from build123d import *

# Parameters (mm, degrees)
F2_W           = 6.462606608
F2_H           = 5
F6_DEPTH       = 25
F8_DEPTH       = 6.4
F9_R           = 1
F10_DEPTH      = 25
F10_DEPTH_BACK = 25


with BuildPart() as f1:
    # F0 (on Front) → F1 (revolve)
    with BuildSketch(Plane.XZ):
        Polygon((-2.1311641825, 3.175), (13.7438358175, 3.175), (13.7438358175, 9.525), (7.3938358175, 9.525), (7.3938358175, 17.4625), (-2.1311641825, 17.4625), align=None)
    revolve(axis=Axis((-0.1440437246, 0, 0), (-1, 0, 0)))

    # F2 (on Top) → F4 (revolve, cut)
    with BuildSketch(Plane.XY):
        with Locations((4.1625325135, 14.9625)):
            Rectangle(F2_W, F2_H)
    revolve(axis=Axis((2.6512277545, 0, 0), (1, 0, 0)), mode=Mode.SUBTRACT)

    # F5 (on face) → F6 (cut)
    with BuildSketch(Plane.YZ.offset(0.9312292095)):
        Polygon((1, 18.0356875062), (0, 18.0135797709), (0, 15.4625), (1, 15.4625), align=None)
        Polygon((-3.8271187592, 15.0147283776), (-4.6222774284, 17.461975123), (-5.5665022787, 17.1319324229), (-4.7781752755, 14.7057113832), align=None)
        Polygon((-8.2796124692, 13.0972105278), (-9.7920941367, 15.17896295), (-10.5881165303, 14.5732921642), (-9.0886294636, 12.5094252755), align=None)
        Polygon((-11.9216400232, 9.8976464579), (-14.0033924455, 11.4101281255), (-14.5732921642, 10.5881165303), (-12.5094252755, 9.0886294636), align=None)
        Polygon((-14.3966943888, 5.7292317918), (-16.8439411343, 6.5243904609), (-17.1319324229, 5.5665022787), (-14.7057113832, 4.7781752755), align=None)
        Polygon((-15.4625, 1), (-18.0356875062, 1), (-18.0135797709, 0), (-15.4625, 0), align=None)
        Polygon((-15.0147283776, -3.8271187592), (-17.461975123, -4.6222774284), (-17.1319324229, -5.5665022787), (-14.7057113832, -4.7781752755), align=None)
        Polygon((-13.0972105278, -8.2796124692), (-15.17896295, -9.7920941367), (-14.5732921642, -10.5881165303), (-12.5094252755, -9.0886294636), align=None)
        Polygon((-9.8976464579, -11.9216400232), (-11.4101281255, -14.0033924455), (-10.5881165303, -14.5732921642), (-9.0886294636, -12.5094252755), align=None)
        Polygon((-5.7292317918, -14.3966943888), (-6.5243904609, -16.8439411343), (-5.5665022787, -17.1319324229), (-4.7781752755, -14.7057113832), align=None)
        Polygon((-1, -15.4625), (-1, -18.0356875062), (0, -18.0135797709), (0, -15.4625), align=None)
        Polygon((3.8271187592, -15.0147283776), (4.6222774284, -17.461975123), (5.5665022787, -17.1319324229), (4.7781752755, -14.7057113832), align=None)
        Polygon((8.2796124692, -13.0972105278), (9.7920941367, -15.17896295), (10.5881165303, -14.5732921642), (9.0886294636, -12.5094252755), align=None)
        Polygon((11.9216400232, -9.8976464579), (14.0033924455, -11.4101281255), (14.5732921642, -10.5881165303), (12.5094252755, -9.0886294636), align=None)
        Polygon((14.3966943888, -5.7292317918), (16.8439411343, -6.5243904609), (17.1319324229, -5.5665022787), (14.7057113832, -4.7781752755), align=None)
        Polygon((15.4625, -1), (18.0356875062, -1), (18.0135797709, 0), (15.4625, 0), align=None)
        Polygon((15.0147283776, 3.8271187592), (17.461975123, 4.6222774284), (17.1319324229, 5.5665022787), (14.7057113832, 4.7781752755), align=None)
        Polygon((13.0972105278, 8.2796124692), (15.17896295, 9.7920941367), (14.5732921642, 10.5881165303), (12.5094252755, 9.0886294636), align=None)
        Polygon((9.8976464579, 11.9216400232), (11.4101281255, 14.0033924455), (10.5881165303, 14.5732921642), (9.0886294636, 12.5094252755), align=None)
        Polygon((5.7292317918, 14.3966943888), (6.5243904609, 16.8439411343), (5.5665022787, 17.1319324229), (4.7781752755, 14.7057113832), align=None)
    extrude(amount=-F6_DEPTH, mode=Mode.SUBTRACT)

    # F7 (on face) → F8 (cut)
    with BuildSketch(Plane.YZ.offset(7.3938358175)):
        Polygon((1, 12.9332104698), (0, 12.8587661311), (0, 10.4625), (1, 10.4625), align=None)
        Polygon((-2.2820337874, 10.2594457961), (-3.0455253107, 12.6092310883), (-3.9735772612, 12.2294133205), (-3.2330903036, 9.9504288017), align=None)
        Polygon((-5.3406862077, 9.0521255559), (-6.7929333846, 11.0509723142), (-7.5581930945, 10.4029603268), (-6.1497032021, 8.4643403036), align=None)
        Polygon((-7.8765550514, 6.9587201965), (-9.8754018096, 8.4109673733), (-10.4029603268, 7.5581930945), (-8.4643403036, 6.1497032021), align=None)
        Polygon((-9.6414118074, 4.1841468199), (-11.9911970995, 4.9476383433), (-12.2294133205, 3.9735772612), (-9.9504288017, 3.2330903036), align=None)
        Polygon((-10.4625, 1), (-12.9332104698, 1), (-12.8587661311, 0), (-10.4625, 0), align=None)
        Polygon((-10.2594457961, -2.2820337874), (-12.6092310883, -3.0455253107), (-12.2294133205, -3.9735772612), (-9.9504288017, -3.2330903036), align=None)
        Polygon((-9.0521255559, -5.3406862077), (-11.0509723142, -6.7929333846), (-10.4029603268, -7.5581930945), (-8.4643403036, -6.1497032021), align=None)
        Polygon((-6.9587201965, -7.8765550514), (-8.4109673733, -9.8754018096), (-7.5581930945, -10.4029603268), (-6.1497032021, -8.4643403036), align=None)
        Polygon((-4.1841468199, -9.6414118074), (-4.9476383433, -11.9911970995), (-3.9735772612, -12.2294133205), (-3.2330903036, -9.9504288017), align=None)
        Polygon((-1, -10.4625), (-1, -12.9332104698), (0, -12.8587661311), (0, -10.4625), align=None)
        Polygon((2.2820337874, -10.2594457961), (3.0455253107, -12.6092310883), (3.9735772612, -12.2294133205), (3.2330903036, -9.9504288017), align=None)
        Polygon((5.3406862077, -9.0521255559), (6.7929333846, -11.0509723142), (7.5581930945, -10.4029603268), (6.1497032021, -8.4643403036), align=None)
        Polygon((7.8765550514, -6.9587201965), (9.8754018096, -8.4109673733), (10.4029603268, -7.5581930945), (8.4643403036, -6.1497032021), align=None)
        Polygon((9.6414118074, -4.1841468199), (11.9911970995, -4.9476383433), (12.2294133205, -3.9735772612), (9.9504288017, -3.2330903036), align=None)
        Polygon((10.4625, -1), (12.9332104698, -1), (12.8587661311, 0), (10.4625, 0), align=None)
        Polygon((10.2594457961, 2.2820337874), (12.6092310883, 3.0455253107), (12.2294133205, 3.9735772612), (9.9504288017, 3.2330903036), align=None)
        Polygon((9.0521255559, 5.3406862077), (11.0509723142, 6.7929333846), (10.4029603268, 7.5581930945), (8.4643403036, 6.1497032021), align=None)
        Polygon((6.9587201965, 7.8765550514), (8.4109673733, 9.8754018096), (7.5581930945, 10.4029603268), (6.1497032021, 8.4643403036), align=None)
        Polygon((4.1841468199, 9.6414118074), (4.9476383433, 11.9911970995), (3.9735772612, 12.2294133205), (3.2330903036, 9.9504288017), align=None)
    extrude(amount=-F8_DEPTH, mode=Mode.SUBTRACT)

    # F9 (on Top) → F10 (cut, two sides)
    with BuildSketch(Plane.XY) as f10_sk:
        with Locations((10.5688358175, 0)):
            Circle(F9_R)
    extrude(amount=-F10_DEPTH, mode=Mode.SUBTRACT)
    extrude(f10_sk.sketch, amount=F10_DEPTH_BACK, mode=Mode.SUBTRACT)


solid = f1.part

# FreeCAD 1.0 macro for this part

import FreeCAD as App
import Part
import Sketcher
Q = App.Units.Quantity


def add_polygon(sketch, points):
    """Adds a closed chain of lines whose ends are joined by coincident constraints."""
    first, n = sketch.GeometryCount, len(points)
    for a, b in zip(points, points[1:] + points[:1]):
        sketch.addGeometry(Part.LineSegment(App.Vector(*a, 0), App.Vector(*b, 0)), False)
    for i in range(n):
        sketch.addConstraint(Sketcher.Constraint("Coincident", first + i, 2, first + (i + 1) % n, 1))

doc = App.newDocument("Part")
body = doc.addObject("PartDesign::Body", "Body")

# Sketch on XZ plane
sketch1 = body.newObject("Sketcher::SketchObject", "Sketch")
sketch1.AttachmentSupport = (doc.getObject("XZ_Plane"), [""])
sketch1.MapMode = "FlatFace"
add_polygon(sketch1, [(-2.131164, 3.175), (13.743836, 3.175), (13.743836, 9.525), (7.393836, 9.525), (7.393836, 17.4625), (-2.131164, 17.4625)])  # lines 0-5
sketch1.addConstraint([
    Sketcher.Constraint("Horizontal", 0),
    Sketcher.Constraint("Vertical", 1),
    Sketcher.Constraint("Horizontal", 2),
    Sketcher.Constraint("Vertical", 3),
    Sketcher.Constraint("Horizontal", 4),
    Sketcher.Constraint("Vertical", 5),
    Sketcher.Constraint("Equal", 2, 1),
    Sketcher.Constraint("DistanceX", 2, 2, 2, 1, 6.35),
    Sketcher.Constraint("DistanceX", 0, 1, 0, 2, 15.875),
    Sketcher.Constraint("DistanceY", 3, 1, 3, 2, 7.9375),
    Sketcher.Constraint("DistanceY", -1, 1, 0, 2, 3.175),
    Sketcher.Constraint("DistanceX", -1, 1, 0, 2, 13.743836),
])
revolution = body.newObject("PartDesign::Revolution", "Revolution")
revolution.Profile = sketch1
revolution.ReferenceAxis = (sketch1, ["H_Axis"])
revolution.Angle = 360

# Sketch on XY plane
sketch2 = body.newObject("Sketcher::SketchObject", "Sketch001")
sketch2.AttachmentSupport = (doc.getObject("XY_Plane"), [""])
sketch2.MapMode = "FlatFace"
add_polygon(sketch2, [(0.931229, 17.4625), (0.931229, 12.4625), (7.393836, 12.4625), (7.393836, 17.4625)])  # lines 0-3
sketch2.addConstraint([
    Sketcher.Constraint("Vertical", 0),
    Sketcher.Constraint("Horizontal", 1),
    Sketcher.Constraint("Vertical", 2),
    Sketcher.Constraint("Horizontal", 3),
    Sketcher.Constraint("DistanceY", 0, 2, 0, 1, 5.0),
    Sketcher.Constraint("DistanceY", -1, 1, 0, 2, 12.4625),
    Sketcher.Constraint("DistanceX", 1, 1, 1, 2, 6.462607),
    Sketcher.Constraint("DistanceX", -1, 1, 0, 2, 0.931229),
])
groove = body.newObject("PartDesign::Groove", "Groove")
groove.Profile = sketch2
groove.ReferenceAxis = (sketch2, ["H_Axis"])
groove.Angle = 360

# Sketch on YZ plane
sketch3 = body.newObject("Sketcher::SketchObject", "Sketch002")
sketch3.AttachmentSupport = (doc.getObject("YZ_Plane"), [""])
sketch3.MapMode = "FlatFace"
sketch3.AttachmentOffset = App.Placement(App.Vector(0, 0, 0.931229), App.Rotation())
add_polygon(sketch3, [(1, 18.035688), (0, 18.01358), (0, 15.4625), (1, 15.4625)])  # lines 0-3
add_polygon(sketch3, [(-3.827119, 15.014728), (-4.622277, 17.461975), (-5.566502, 17.131932), (-4.778175, 14.705711)])  # lines 4-7
add_polygon(sketch3, [(-8.279612, 13.097211), (-9.792094, 15.178963), (-10.588117, 14.573292), (-9.088629, 12.509425)])  # lines 8-11
add_polygon(sketch3, [(-11.92164, 9.897646), (-14.003392, 11.410128), (-14.573292, 10.588117), (-12.509425, 9.088629)])  # lines 12-15
add_polygon(sketch3, [(-14.396694, 5.729232), (-16.843941, 6.52439), (-17.131932, 5.566502), (-14.705711, 4.778175)])  # lines 16-19
add_polygon(sketch3, [(-15.4625, 1), (-18.035688, 1), (-18.01358, 0), (-15.4625, 0)])  # lines 20-23
add_polygon(sketch3, [(-15.014728, -3.827119), (-17.461975, -4.622277), (-17.131932, -5.566502), (-14.705711, -4.778175)])  # lines 24-27
add_polygon(sketch3, [(-13.097211, -8.279612), (-15.178963, -9.792094), (-14.573292, -10.588117), (-12.509425, -9.088629)])  # lines 28-31
add_polygon(sketch3, [(-9.897646, -11.92164), (-11.410128, -14.003392), (-10.588117, -14.573292), (-9.088629, -12.509425)])  # lines 32-35
add_polygon(sketch3, [(-5.729232, -14.396694), (-6.52439, -16.843941), (-5.566502, -17.131932), (-4.778175, -14.705711)])  # lines 36-39
add_polygon(sketch3, [(-1, -15.4625), (-1, -18.035688), (0, -18.01358), (0, -15.4625)])  # lines 40-43
add_polygon(sketch3, [(3.827119, -15.014728), (4.622277, -17.461975), (5.566502, -17.131932), (4.778175, -14.705711)])  # lines 44-47
add_polygon(sketch3, [(8.279612, -13.097211), (9.792094, -15.178963), (10.588117, -14.573292), (9.088629, -12.509425)])  # lines 48-51
add_polygon(sketch3, [(11.92164, -9.897646), (14.003392, -11.410128), (14.573292, -10.588117), (12.509425, -9.088629)])  # lines 52-55
add_polygon(sketch3, [(14.396694, -5.729232), (16.843941, -6.52439), (17.131932, -5.566502), (14.705711, -4.778175)])  # lines 56-59
add_polygon(sketch3, [(15.4625, -1), (18.035688, -1), (18.01358, 0), (15.4625, 0)])  # lines 60-63
add_polygon(sketch3, [(15.014728, 3.827119), (17.461975, 4.622277), (17.131932, 5.566502), (14.705711, 4.778175)])  # lines 64-67
add_polygon(sketch3, [(13.097211, 8.279612), (15.178963, 9.792094), (14.573292, 10.588117), (12.509425, 9.088629)])  # lines 68-71
add_polygon(sketch3, [(9.897646, 11.92164), (11.410128, 14.003392), (10.588117, 14.573292), (9.088629, 12.509425)])  # lines 72-75
add_polygon(sketch3, [(5.729232, 14.396694), (6.52439, 16.843941), (5.566502, 17.131932), (4.778175, 14.705711)])  # lines 76-79
sketch3.addConstraint([
    Sketcher.Constraint("Vertical", 1),
    Sketcher.Constraint("Horizontal", 2),
    Sketcher.Constraint("Vertical", 3),
    Sketcher.Constraint("Horizontal", 20),
    Sketcher.Constraint("Horizontal", 22),
    Sketcher.Constraint("Vertical", 23),
    Sketcher.Constraint("Vertical", 40),
    Sketcher.Constraint("Vertical", 42),
    Sketcher.Constraint("Horizontal", 43),
    Sketcher.Constraint("Horizontal", 60),
    Sketcher.Constraint("Horizontal", 62),
    Sketcher.Constraint("Vertical", 63),
    Sketcher.Constraint("Symmetric", 3, 2, 40, 2, -1, 1),
    Sketcher.Constraint("Symmetric", 0, 2, 41, 2, -1, 1),
    Sketcher.Constraint("Symmetric", 4, 2, 44, 2, -1, 1),
    Sketcher.Constraint("Symmetric", 5, 2, 45, 2, -1, 1),
    Sketcher.Constraint("Symmetric", 6, 2, 46, 2, -1, 1),
    Sketcher.Constraint("Symmetric", 7, 2, 47, 2, -1, 1),
    Sketcher.Constraint("Symmetric", 8, 2, 48, 2, -1, 1),
    Sketcher.Constraint("Symmetric", 9, 2, 49, 2, -1, 1),
    Sketcher.Constraint("Symmetric", 10, 2, 50, 2, -1, 1),
    Sketcher.Constraint("Symmetric", 11, 2, 51, 2, -1, 1),
    Sketcher.Constraint("Symmetric", 12, 2, 52, 2, -1, 1),
    Sketcher.Constraint("Symmetric", 13, 2, 53, 2, -1, 1),
    Sketcher.Constraint("Symmetric", 14, 2, 54, 2, -1, 1),
    Sketcher.Constraint("Symmetric", 15, 2, 55, 2, -1, 1),
    Sketcher.Constraint("Symmetric", 16, 2, 56, 2, -1, 1),
    Sketcher.Constraint("Symmetric", 17, 2, 57, 2, -1, 1),
    Sketcher.Constraint("Symmetric", 18, 2, 58, 2, -1, 1),
    Sketcher.Constraint("Symmetric", 19, 2, 59, 2, -1, 1),
    Sketcher.Constraint("Symmetric", 20, 2, 60, 2, -1, 1),
    Sketcher.Constraint("Symmetric", 21, 2, 61, 2, -1, 1),
    Sketcher.Constraint("Symmetric", 24, 2, 64, 2, -1, 1),
    Sketcher.Constraint("Symmetric", 25, 2, 65, 2, -1, 1),
    Sketcher.Constraint("Symmetric", 26, 2, 66, 2, -1, 1),
    Sketcher.Constraint("Symmetric", 27, 2, 67, 2, -1, 1),
    Sketcher.Constraint("Symmetric", 28, 2, 68, 2, -1, 1),
    Sketcher.Constraint("Symmetric", 29, 2, 69, 2, -1, 1),
    Sketcher.Constraint("Symmetric", 30, 2, 70, 2, -1, 1),
    Sketcher.Constraint("Symmetric", 31, 2, 71, 2, -1, 1),
    Sketcher.Constraint("Symmetric", 32, 2, 72, 2, -1, 1),
    Sketcher.Constraint("Symmetric", 33, 2, 73, 2, -1, 1),
    Sketcher.Constraint("Symmetric", 34, 2, 74, 2, -1, 1),
    Sketcher.Constraint("Symmetric", 35, 2, 75, 2, -1, 1),
    Sketcher.Constraint("Symmetric", 36, 2, 76, 2, -1, 1),
    Sketcher.Constraint("Symmetric", 37, 2, 77, 2, -1, 1),
    Sketcher.Constraint("Symmetric", 38, 2, 78, 2, -1, 1),
    Sketcher.Constraint("Symmetric", 39, 2, 79, 2, -1, 1),
    Sketcher.Constraint("Symmetric", 37, 2, 45, 2, -2),
    Sketcher.Constraint("Symmetric", 38, 2, 46, 2, -2),
    Sketcher.Constraint("Symmetric", 33, 2, 49, 2, -2),
    Sketcher.Constraint("Symmetric", 34, 2, 50, 2, -2),
    Sketcher.Constraint("Symmetric", 29, 2, 53, 2, -2),
    Sketcher.Constraint("Symmetric", 30, 2, 54, 2, -2),
    Sketcher.Constraint("Symmetric", 25, 2, 57, 2, -2),
    Sketcher.Constraint("Symmetric", 26, 2, 58, 2, -2),
    Sketcher.Constraint("Symmetric", 22, 2, 62, 2, -2),
    Sketcher.Constraint("Symmetric", 1, 2, 42, 2, -1),
    Sketcher.Constraint("Parallel", 4, 6),
    Sketcher.Constraint("Perpendicular", 6, 7),
    Sketcher.Constraint("Parallel", 8, 10),
    Sketcher.Constraint("Perpendicular", 10, 11),
    Sketcher.Constraint("Parallel", 12, 14),
    Sketcher.Constraint("Perpendicular", 14, 15),
    Sketcher.Constraint("Parallel", 16, 18),
    Sketcher.Constraint("Perpendicular", 18, 19),
    Sketcher.Constraint("Perpendicular", 0, 21),
    Sketcher.Constraint("Parallel", 7, 24),
    Sketcher.Constraint("Perpendicular", 5, 25),
    Sketcher.Constraint("Parallel", 24, 26),
    Sketcher.Constraint("Perpendicular", 26, 27),
    Sketcher.Constraint("Parallel", 11, 28),
    Sketcher.Constraint("Perpendicular", 9, 29),
    Sketcher.Constraint("Parallel", 28, 30),
    Sketcher.Constraint("Perpendicular", 30, 31),
    Sketcher.Constraint("Parallel", 15, 32),
    Sketcher.Constraint("Perpendicular", 13, 33),
    Sketcher.Constraint("Perpendicular", 34, 35),
    Sketcher.Constraint("Parallel", 19, 36),
    Sketcher.Constraint("Perpendicular", 17, 37),
    Sketcher.Constraint("Perpendicular", 38, 39),
    Sketcher.Constraint("Equal", 62, 1),
    Sketcher.Constraint("Equal", 60, 3),
    Sketcher.Constraint("Equal", 0, 5),
    Sketcher.Constraint("Equal", 4, 8),
    Sketcher.Constraint("Equal", 5, 9),
    Sketcher.Constraint("Equal", 6, 10),
    Sketcher.Constraint("Equal", 8, 12),
    Sketcher.Constraint("Equal", 9, 13),
    Sketcher.Constraint("Equal", 10, 14),
    Sketcher.Constraint("Equal", 12, 16),
    Sketcher.Constraint("Equal", 13, 17),
    Sketcher.Constraint("Equal", 14, 18),
    Sketcher.Constraint("Equal", 16, 24),
    Sketcher.Constraint("Equal", 24, 28),
    Sketcher.Constraint("Equal", 28, 32),
    Sketcher.Constraint("Equal", 32, 36),
    Sketcher.Constraint("DistanceX", 2, 1, 2, 2, 1.0),
    Sketcher.Constraint("Angle", 4, Q("108 deg")),
    Sketcher.Constraint("Angle", 8, Q("126 deg")),
    Sketcher.Constraint("Distance", 7, 1.0),
    Sketcher.Constraint("DistanceX", 22, 1, 22, 2, 2.55108),
    Sketcher.Constraint("DistanceY", -1, 1, 1, 2, 15.4625),
    Sketcher.Constraint("DistanceX", 22, 2, -1, 1, 15.4625),
    Sketcher.Constraint("Distance", 6, 2.55108),
    Sketcher.Constraint("DistanceX", 20, 2, 20, 1, 2.573188),
    Sketcher.Constraint("DistanceY", -1, 1, 6, 2, 14.705711),
    Sketcher.Constraint("DistanceX", 7, 2, -1, 1, 3.827119),
    Sketcher.Constraint("DistanceX", 10, 2, -1, 1, 9.088629),
    Sketcher.Constraint("DistanceY", -1, 1, 11, 2, 13.097211),
    Sketcher.Constraint("DistanceY", -1, 1, 12, 2, 11.410128),
    Sketcher.Constraint("DistanceX", 15, 2, -1, 1, 11.92164),
    Sketcher.Constraint("DistanceX", 16, 2, -1, 1, 16.843941),
    Sketcher.Constraint("DistanceY", -1, 1, 16, 2, 6.52439),
])
pocket1 = body.newObject("PartDesign::Pocket", "Pocket")
pocket1.Profile = sketch3
pocket1.Length = 25

# Sketch on YZ plane
sketch4 = body.newObject("Sketcher::SketchObject", "Sketch003")
sketch4.AttachmentSupport = (doc.getObject("YZ_Plane"), [""])
sketch4.MapMode = "FlatFace"
sketch4.AttachmentOffset = App.Placement(App.Vector(0, 0, 7.393836), App.Rotation())
add_polygon(sketch4, [(1, 12.93321), (0, 12.858766), (0, 10.4625), (1, 10.4625)])  # lines 0-3
add_polygon(sketch4, [(-2.282034, 10.259446), (-3.045525, 12.609231), (-3.973577, 12.229413), (-3.23309, 9.950429)])  # lines 4-7
add_polygon(sketch4, [(-5.340686, 9.052126), (-6.792933, 11.050972), (-7.558193, 10.40296), (-6.149703, 8.46434)])  # lines 8-11
add_polygon(sketch4, [(-7.876555, 6.95872), (-9.875402, 8.410967), (-10.40296, 7.558193), (-8.46434, 6.149703)])  # lines 12-15
add_polygon(sketch4, [(-9.641412, 4.184147), (-11.991197, 4.947638), (-12.229413, 3.973577), (-9.950429, 3.23309)])  # lines 16-19
add_polygon(sketch4, [(-10.4625, 1), (-12.93321, 1), (-12.858766, 0), (-10.4625, 0)])  # lines 20-23
add_polygon(sketch4, [(-10.259446, -2.282034), (-12.609231, -3.045525), (-12.229413, -3.973577), (-9.950429, -3.23309)])  # lines 24-27
add_polygon(sketch4, [(-9.052126, -5.340686), (-11.050972, -6.792933), (-10.40296, -7.558193), (-8.46434, -6.149703)])  # lines 28-31
add_polygon(sketch4, [(-6.95872, -7.876555), (-8.410967, -9.875402), (-7.558193, -10.40296), (-6.149703, -8.46434)])  # lines 32-35
add_polygon(sketch4, [(-4.184147, -9.641412), (-4.947638, -11.991197), (-3.973577, -12.229413), (-3.23309, -9.950429)])  # lines 36-39
add_polygon(sketch4, [(-1, -10.4625), (-1, -12.93321), (0, -12.858766), (0, -10.4625)])  # lines 40-43
add_polygon(sketch4, [(2.282034, -10.259446), (3.045525, -12.609231), (3.973577, -12.229413), (3.23309, -9.950429)])  # lines 44-47
add_polygon(sketch4, [(5.340686, -9.052126), (6.792933, -11.050972), (7.558193, -10.40296), (6.149703, -8.46434)])  # lines 48-51
add_polygon(sketch4, [(7.876555, -6.95872), (9.875402, -8.410967), (10.40296, -7.558193), (8.46434, -6.149703)])  # lines 52-55
add_polygon(sketch4, [(9.641412, -4.184147), (11.991197, -4.947638), (12.229413, -3.973577), (9.950429, -3.23309)])  # lines 56-59
add_polygon(sketch4, [(10.4625, -1), (12.93321, -1), (12.858766, 0), (10.4625, 0)])  # lines 60-63
add_polygon(sketch4, [(10.259446, 2.282034), (12.609231, 3.045525), (12.229413, 3.973577), (9.950429, 3.23309)])  # lines 64-67
add_polygon(sketch4, [(9.052126, 5.340686), (11.050972, 6.792933), (10.40296, 7.558193), (8.46434, 6.149703)])  # lines 68-71
add_polygon(sketch4, [(6.95872, 7.876555), (8.410967, 9.875402), (7.558193, 10.40296), (6.149703, 8.46434)])  # lines 72-75
add_polygon(sketch4, [(4.184147, 9.641412), (4.947638, 11.991197), (3.973577, 12.229413), (3.23309, 9.950429)])  # lines 76-79
sketch4.addConstraint([
    Sketcher.Constraint("Vertical", 1),
    Sketcher.Constraint("Horizontal", 2),
    Sketcher.Constraint("Vertical", 3),
    Sketcher.Constraint("Horizontal", 20),
    Sketcher.Constraint("Horizontal", 22),
    Sketcher.Constraint("Vertical", 23),
    Sketcher.Constraint("Vertical", 40),
    Sketcher.Constraint("Vertical", 42),
    Sketcher.Constraint("Horizontal", 43),
    Sketcher.Constraint("Horizontal", 60),
    Sketcher.Constraint("Horizontal", 62),
    Sketcher.Constraint("Vertical", 63),
    Sketcher.Constraint("Symmetric", 3, 2, 40, 2, -1, 1),
    Sketcher.Constraint("Symmetric", 0, 2, 41, 2, -1, 1),
    Sketcher.Constraint("Symmetric", 4, 2, 44, 2, -1, 1),
    Sketcher.Constraint("Symmetric", 5, 2, 45, 2, -1, 1),
    Sketcher.Constraint("Symmetric", 6, 2, 46, 2, -1, 1),
    Sketcher.Constraint("Symmetric", 7, 2, 47, 2, -1, 1),
    Sketcher.Constraint("Symmetric", 8, 2, 48, 2, -1, 1),
    Sketcher.Constraint("Symmetric", 9, 2, 49, 2, -1, 1),
    Sketcher.Constraint("Symmetric", 10, 2, 50, 2, -1, 1),
    Sketcher.Constraint("Symmetric", 11, 2, 51, 2, -1, 1),
    Sketcher.Constraint("Symmetric", 12, 2, 52, 2, -1, 1),
    Sketcher.Constraint("Symmetric", 13, 2, 53, 2, -1, 1),
    Sketcher.Constraint("Symmetric", 14, 2, 54, 2, -1, 1),
    Sketcher.Constraint("Symmetric", 15, 2, 55, 2, -1, 1),
    Sketcher.Constraint("Symmetric", 16, 2, 56, 2, -1, 1),
    Sketcher.Constraint("Symmetric", 17, 2, 57, 2, -1, 1),
    Sketcher.Constraint("Symmetric", 18, 2, 58, 2, -1, 1),
    Sketcher.Constraint("Symmetric", 19, 2, 59, 2, -1, 1),
    Sketcher.Constraint("Symmetric", 20, 2, 60, 2, -1, 1),
    Sketcher.Constraint("Symmetric", 21, 2, 61, 2, -1, 1),
    Sketcher.Constraint("Symmetric", 24, 2, 64, 2, -1, 1),
    Sketcher.Constraint("Symmetric", 25, 2, 65, 2, -1, 1),
    Sketcher.Constraint("Symmetric", 26, 2, 66, 2, -1, 1),
    Sketcher.Constraint("Symmetric", 27, 2, 67, 2, -1, 1),
    Sketcher.Constraint("Symmetric", 28, 2, 68, 2, -1, 1),
    Sketcher.Constraint("Symmetric", 29, 2, 69, 2, -1, 1),
    Sketcher.Constraint("Symmetric", 30, 2, 70, 2, -1, 1),
    Sketcher.Constraint("Symmetric", 31, 2, 71, 2, -1, 1),
    Sketcher.Constraint("Symmetric", 32, 2, 72, 2, -1, 1),
    Sketcher.Constraint("Symmetric", 33, 2, 73, 2, -1, 1),
    Sketcher.Constraint("Symmetric", 34, 2, 74, 2, -1, 1),
    Sketcher.Constraint("Symmetric", 35, 2, 75, 2, -1, 1),
    Sketcher.Constraint("Symmetric", 36, 2, 76, 2, -1, 1),
    Sketcher.Constraint("Symmetric", 37, 2, 77, 2, -1, 1),
    Sketcher.Constraint("Symmetric", 38, 2, 78, 2, -1, 1),
    Sketcher.Constraint("Symmetric", 39, 2, 79, 2, -1, 1),
    Sketcher.Constraint("Symmetric", 37, 2, 45, 2, -2),
    Sketcher.Constraint("Symmetric", 38, 2, 46, 2, -2),
    Sketcher.Constraint("Symmetric", 33, 2, 49, 2, -2),
    Sketcher.Constraint("Symmetric", 34, 2, 50, 2, -2),
    Sketcher.Constraint("Symmetric", 29, 2, 53, 2, -2),
    Sketcher.Constraint("Symmetric", 30, 2, 54, 2, -2),
    Sketcher.Constraint("Symmetric", 25, 2, 57, 2, -2),
    Sketcher.Constraint("Symmetric", 26, 2, 58, 2, -2),
    Sketcher.Constraint("Symmetric", 22, 2, 62, 2, -2),
    Sketcher.Constraint("Symmetric", 1, 2, 42, 2, -1),
    Sketcher.Constraint("Parallel", 4, 6),
    Sketcher.Constraint("Perpendicular", 6, 7),
    Sketcher.Constraint("Parallel", 8, 10),
    Sketcher.Constraint("Perpendicular", 10, 11),
    Sketcher.Constraint("Parallel", 12, 14),
    Sketcher.Constraint("Perpendicular", 14, 15),
    Sketcher.Constraint("Parallel", 16, 18),
    Sketcher.Constraint("Perpendicular", 18, 19),
    Sketcher.Constraint("Perpendicular", 0, 21),
    Sketcher.Constraint("Parallel", 7, 24),
    Sketcher.Constraint("Perpendicular", 5, 25),
    Sketcher.Constraint("Parallel", 24, 26),
    Sketcher.Constraint("Perpendicular", 26, 27),
    Sketcher.Constraint("Parallel", 11, 28),
    Sketcher.Constraint("Perpendicular", 9, 29),
    Sketcher.Constraint("Parallel", 28, 30),
    Sketcher.Constraint("Perpendicular", 30, 31),
    Sketcher.Constraint("Parallel", 15, 32),
    Sketcher.Constraint("Perpendicular", 13, 33),
    Sketcher.Constraint("Perpendicular", 34, 35),
    Sketcher.Constraint("Parallel", 19, 36),
    Sketcher.Constraint("Perpendicular", 17, 37),
    Sketcher.Constraint("Perpendicular", 38, 39),
    Sketcher.Constraint("Equal", 62, 1),
    Sketcher.Constraint("Equal", 60, 3),
    Sketcher.Constraint("Equal", 0, 5),
    Sketcher.Constraint("Equal", 4, 8),
    Sketcher.Constraint("Equal", 5, 9),
    Sketcher.Constraint("Equal", 6, 10),
    Sketcher.Constraint("Equal", 8, 12),
    Sketcher.Constraint("Equal", 9, 13),
    Sketcher.Constraint("Equal", 10, 14),
    Sketcher.Constraint("Equal", 12, 16),
    Sketcher.Constraint("Equal", 13, 17),
    Sketcher.Constraint("Equal", 14, 18),
    Sketcher.Constraint("Equal", 16, 24),
    Sketcher.Constraint("Equal", 24, 28),
    Sketcher.Constraint("Equal", 28, 32),
    Sketcher.Constraint("Equal", 32, 36),
    Sketcher.Constraint("DistanceX", 2, 1, 2, 2, 1.0),
    Sketcher.Constraint("Angle", 4, Q("108 deg")),
    Sketcher.Constraint("Angle", 8, Q("126 deg")),
    Sketcher.Constraint("Distance", 7, 1.0),
    Sketcher.Constraint("DistanceX", 20, 2, 20, 1, 2.47071),
    Sketcher.Constraint("DistanceY", -1, 1, 1, 2, 10.4625),
    Sketcher.Constraint("DistanceX", 12, 2, -1, 1, 9.875402),
    Sketcher.Constraint("DistanceX", 22, 2, -1, 1, 10.4625),
    Sketcher.Constraint("DistanceY", 32, 2, -1, 1, 9.875402),
    Sketcher.Constraint("Distance", 4, 2.47071),
    Sketcher.Constraint("DistanceX", 22, 1, 22, 2, 2.396266),
    Sketcher.Constraint("DistanceY", -1, 1, 4, 2, 12.609231),
    Sketcher.Constraint("DistanceX", 6, 2, -1, 1, 3.23309),
    Sketcher.Constraint("DistanceY", -1, 1, 15, 2, 6.95872),
    Sketcher.Constraint("DistanceY", -1, 1, 16, 2, 4.947638),
    Sketcher.Constraint("DistanceX", 18, 2, -1, 1, 9.950429),
    Sketcher.Constraint("DistanceX", 35, 2, -1, 1, 6.95872),
])
pocket2 = body.newObject("PartDesign::Pocket", "Pocket001")
pocket2.Profile = sketch4
pocket2.Length = 6.4

# Sketch on XY plane
sketch5 = body.newObject("Sketcher::SketchObject", "Sketch004")
sketch5.AttachmentSupport = (doc.getObject("XY_Plane"), [""])
sketch5.MapMode = "FlatFace"
sketch5.addGeometry(Part.Circle(App.Vector(10.568836, 0, 0), App.Vector(0, 0, 1), 1), False)
sketch5.addConstraint([
    Sketcher.Constraint("PointOnObject", 0, 3, -1),
    Sketcher.Constraint("Diameter", 0, 2.0),
    Sketcher.Constraint("DistanceX", -1, 1, 0, 3, 10.568836),
])
pocket3 = body.newObject("PartDesign::Pocket", "Pocket002")
pocket3.Profile = sketch5
pocket3.Type = "ThroughAll"
pocket3.Midplane = True

doc.recompute()
